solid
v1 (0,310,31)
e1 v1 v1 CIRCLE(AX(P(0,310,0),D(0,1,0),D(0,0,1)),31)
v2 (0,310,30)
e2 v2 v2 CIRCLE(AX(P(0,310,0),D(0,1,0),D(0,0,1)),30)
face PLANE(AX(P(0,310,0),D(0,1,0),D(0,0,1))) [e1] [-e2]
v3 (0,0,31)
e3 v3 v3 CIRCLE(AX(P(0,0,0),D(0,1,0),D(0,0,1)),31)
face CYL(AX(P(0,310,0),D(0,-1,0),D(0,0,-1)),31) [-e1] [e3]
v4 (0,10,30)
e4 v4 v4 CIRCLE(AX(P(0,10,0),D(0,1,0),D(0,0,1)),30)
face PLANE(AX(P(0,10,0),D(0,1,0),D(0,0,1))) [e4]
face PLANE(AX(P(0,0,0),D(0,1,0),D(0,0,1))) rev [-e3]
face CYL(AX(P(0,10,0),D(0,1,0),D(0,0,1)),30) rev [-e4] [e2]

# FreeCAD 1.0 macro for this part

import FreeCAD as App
import Part
import Sketcher
from FreeCAD import Vector
Q = App.Units.Quantity

doc = App.newDocument("Part")
params = doc.addObject("Spreadsheet::Sheet", "Params")
for row, (alias, value) in enumerate([
    ("sketch1_diameter", "62 mm"),
    ("pad1_length", "310 mm"),
    ("sketch2_diameter", "60 mm"),
    ("pocket1_length", "300 mm"),
], start=1):
    params.set(f"A{row}", alias)
    params.set(f"B{row}", "=" + value)
    params.setAlias(f"B{row}", alias)

body = doc.addObject("PartDesign::Body", "Body")

# Sketch on XZ plane
sketch1 = doc.addObject("Sketcher::SketchObject", "Sketch")
body.addObject(sketch1)
sketch1.AttachmentSupport = (doc.XZ_Plane, [""])
sketch1.MapMode = "FlatFace"
sketch1.addGeometry(Part.Circle(Vector(0, 0, 0), Vector(0, 0, 1), 31), False)
sketch1.addConstraint(Sketcher.Constraint("Coincident", 0, 3, -1, 1))
sketch1.addConstraint(Sketcher.Constraint("Diameter", 0, Q("62 mm")))
sketch1.setExpression("Constraints[1]", "Params.sketch1_diameter")
pad1 = doc.addObject("PartDesign::Pad", "Pad")
body.addObject(pad1)
pad1.Profile = sketch1
pad1.setExpression("Length", "Params.pad1_length")
pad1.Reversed = True

# Sketch on XZ plane
sketch2 = doc.addObject("Sketcher::SketchObject", "Sketch001")
body.addObject(sketch2)
sketch2.AttachmentSupport = (doc.XZ_Plane, [""])
sketch2.MapMode = "FlatFace"
sketch2.AttachmentOffset = App.Placement(Vector(0, 0, -310), App.Rotation())
sketch2.addGeometry(Part.Circle(Vector(0, 0, 0), Vector(0, 0, 1), 30), False)
sketch2.addConstraint(Sketcher.Constraint("Coincident", 0, 3, -1, 1))
sketch2.addConstraint(Sketcher.Constraint("Diameter", 0, Q("60 mm")))
sketch2.setExpression("Constraints[1]", "Params.sketch2_diameter")
pocket1 = doc.addObject("PartDesign::Pocket", "Pocket")
body.addObject(pocket1)
pocket1.Profile = sketch2
pocket1.setExpression("Length", "Params.pocket1_length")
pocket1.Reversed = True

doc.recompute()
